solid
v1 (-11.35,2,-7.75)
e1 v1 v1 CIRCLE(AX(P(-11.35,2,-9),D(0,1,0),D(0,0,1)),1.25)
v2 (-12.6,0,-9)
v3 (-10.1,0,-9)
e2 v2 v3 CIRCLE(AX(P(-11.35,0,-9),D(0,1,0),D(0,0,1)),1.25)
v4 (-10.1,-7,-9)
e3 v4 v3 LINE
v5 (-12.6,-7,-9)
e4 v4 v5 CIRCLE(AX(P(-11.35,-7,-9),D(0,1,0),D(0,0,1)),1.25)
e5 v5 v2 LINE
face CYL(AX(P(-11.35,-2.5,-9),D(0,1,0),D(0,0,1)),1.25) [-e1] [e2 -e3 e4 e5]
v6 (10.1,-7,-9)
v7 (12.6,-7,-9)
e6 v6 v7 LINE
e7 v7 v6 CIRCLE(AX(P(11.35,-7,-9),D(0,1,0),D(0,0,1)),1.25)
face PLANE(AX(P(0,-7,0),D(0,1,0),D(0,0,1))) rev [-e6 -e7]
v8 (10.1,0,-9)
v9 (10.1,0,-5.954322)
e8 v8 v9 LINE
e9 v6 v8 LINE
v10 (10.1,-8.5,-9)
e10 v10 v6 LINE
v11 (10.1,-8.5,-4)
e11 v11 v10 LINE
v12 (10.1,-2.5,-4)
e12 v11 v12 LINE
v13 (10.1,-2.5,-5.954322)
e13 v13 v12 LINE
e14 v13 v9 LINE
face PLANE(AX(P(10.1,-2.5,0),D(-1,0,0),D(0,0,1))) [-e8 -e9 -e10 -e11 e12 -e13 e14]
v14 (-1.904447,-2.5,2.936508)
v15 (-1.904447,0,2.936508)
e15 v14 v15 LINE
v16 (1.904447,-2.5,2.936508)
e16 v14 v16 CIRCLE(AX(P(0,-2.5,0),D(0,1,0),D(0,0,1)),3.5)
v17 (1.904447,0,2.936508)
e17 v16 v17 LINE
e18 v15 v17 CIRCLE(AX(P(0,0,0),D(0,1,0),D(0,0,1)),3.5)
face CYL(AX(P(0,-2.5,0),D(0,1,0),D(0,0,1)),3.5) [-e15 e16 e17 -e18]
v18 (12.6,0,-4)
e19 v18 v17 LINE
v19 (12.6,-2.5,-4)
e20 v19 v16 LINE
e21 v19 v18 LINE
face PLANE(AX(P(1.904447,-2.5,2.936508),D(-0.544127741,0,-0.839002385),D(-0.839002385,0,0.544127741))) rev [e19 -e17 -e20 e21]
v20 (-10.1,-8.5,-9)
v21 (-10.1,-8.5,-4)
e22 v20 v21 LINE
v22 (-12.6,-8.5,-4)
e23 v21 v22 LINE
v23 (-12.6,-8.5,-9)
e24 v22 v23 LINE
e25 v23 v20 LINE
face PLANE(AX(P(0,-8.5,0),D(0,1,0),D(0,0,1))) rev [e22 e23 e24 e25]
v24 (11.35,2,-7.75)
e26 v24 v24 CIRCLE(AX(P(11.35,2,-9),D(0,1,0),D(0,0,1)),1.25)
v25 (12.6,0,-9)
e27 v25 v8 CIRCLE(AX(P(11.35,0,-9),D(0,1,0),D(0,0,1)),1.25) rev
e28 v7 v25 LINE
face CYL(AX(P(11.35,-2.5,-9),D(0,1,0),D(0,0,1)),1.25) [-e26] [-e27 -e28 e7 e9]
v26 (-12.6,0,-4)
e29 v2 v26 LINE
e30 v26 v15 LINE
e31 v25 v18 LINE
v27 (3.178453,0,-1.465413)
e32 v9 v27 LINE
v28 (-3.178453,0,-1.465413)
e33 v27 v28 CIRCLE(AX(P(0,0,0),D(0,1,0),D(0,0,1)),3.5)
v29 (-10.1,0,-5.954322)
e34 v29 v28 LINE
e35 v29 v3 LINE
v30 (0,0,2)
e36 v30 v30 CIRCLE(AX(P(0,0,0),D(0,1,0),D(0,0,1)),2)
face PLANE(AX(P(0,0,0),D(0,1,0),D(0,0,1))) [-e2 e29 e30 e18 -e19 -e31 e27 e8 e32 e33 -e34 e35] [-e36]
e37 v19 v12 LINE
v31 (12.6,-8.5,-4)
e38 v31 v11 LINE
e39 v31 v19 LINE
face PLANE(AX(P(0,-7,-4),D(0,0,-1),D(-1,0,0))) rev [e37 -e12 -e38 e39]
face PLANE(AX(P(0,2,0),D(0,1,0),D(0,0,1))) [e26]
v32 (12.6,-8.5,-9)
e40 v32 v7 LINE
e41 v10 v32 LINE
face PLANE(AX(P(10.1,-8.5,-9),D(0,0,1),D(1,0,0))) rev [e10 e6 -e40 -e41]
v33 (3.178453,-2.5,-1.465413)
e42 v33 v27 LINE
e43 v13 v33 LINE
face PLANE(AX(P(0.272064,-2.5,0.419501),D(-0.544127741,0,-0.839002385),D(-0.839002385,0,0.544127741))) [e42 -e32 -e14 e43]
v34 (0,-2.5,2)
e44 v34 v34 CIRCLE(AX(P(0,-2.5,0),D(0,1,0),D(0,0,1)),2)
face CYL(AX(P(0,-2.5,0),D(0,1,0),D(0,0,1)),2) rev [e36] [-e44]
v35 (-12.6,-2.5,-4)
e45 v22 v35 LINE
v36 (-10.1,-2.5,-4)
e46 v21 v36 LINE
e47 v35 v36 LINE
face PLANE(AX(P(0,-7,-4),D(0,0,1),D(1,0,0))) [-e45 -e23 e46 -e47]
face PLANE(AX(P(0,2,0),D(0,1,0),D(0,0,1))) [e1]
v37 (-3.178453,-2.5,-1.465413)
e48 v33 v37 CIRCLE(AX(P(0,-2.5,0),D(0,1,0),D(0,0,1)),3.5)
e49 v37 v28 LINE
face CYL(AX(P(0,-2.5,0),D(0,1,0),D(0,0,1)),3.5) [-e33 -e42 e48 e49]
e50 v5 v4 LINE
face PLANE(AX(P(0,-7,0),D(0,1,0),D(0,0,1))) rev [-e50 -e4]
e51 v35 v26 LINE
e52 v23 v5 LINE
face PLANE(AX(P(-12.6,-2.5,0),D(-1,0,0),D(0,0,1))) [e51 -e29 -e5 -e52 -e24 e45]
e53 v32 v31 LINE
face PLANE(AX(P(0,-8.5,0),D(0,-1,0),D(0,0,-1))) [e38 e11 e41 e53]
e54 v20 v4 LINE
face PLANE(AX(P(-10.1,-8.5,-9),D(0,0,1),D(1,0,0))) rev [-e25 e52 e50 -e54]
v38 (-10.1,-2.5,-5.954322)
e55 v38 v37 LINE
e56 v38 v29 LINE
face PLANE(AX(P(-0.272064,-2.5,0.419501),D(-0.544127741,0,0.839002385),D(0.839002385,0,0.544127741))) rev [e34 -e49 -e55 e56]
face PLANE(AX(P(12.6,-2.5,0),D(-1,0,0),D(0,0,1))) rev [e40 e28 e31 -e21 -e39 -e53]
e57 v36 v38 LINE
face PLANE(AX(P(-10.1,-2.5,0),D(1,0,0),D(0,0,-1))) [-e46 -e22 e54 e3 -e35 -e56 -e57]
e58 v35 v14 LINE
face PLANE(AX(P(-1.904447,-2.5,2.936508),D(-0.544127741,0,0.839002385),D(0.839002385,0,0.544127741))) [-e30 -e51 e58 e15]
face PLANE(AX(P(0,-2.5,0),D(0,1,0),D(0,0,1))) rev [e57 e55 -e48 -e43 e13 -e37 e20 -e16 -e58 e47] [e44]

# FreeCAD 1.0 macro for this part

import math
import FreeCAD as App
import Part
import Sketcher

doc = App.newDocument("Part")
params = doc.addObject("Spreadsheet::Sheet", "Params")
for row, (alias, value) in enumerate([
    ("sketch1_diameter", "4 mm"),
    ("sketch1_radius", "3.5 mm"),
    ("sketch1_height", "5 mm"),
    ("sketch1_radius2", "1.25 mm"),
    ("pad1_length", "2.5 mm"),
    ("sketch2_height", "5 mm"),
    ("sketch2_radius", "1.25 mm"),
    ("pad2_length", "7 mm"),
    ("sketch3_diameter", "2.5 mm"),
    ("pad3_length", "2 mm"),
    ("sketch4_height", "5 mm"),
    ("sketch4_width", "2.5 mm"),
    ("pad4_length", "1.5 mm"),
], start=1):
    params.set(f"A{row}", alias)
    params.set(f"B{row}", "=" + value)
    params.setAlias(f"B{row}", alias)

body = doc.addObject("PartDesign::Body", "Body")

sketch1 = doc.addObject("Sketcher::SketchObject", "Sketch")
body.addObject(sketch1)
sketch1.AttachmentSupport = (doc.XZ_Plane, [""])
sketch1.MapMode = "FlatFace"
sketch1.addGeometry([
    Part.ArcOfCircle(Part.Circle(App.Vector(-11.3, -9, 0), App.Vector(0, 0, 1), 1.2), math.radians(180), math.radians(360)),
    Part.LineSegment(App.Vector(-12.6, -9, 0), App.Vector(-12.6, -4, 0)),
    Part.LineSegment(App.Vector(-12.6, -4, 0), App.Vector(-1.9, 2.9, 0)),
    Part.ArcOfCircle(Part.Circle(App.Vector(0, 0, 0), App.Vector(0, 0, 1), 3.5), math.radians(57), math.radians(123)),
    Part.LineSegment(App.Vector(1.9, 2.9, 0), App.Vector(12.6, -4, 0)),
    Part.LineSegment(App.Vector(12.6, -4, 0), App.Vector(12.6, -9, 0)),
    Part.ArcOfCircle(Part.Circle(App.Vector(11.3, -9, 0), App.Vector(0, 0, 1), 1.2), math.radians(180), math.radians(360)),
    Part.LineSegment(App.Vector(10.1, -9, 0), App.Vector(10.1, -6, 0)),
    Part.LineSegment(App.Vector(10.1, -6, 0), App.Vector(3.2, -1.5, 0)),
    Part.ArcOfCircle(Part.Circle(App.Vector(0, 0, 0), App.Vector(0, 0, 1), 3.5), math.radians(-155), math.radians(-25)),
    Part.LineSegment(App.Vector(-3.2, -1.5, 0), App.Vector(-10.1, -6, 0)),
    Part.LineSegment(App.Vector(-10.1, -6, 0), App.Vector(-10.1, -9, 0)),
    Part.Circle(App.Vector(0, 0, 0), App.Vector(0, 0, 1), 2),
], False)
sketch1.addConstraint([
    Sketcher.Constraint("Tangent", 0, 1, 1, 1),
    Sketcher.Constraint("Coincident", 1, 2, 2, 1),
    Sketcher.Constraint("Tangent", 2, 2, 3, 2),
    Sketcher.Constraint("Tangent", 3, 1, 4, 1),
    Sketcher.Constraint("Coincident", 4, 2, 5, 1),
    Sketcher.Constraint("Tangent", 5, 2, 6, 2),
    Sketcher.Constraint("Tangent", 6, 1, 7, 1),
    Sketcher.Constraint("Coincident", 7, 2, 8, 1),
    Sketcher.Constraint("Coincident", 8, 2, 9, 2),
    Sketcher.Constraint("Coincident", 9, 1, 10, 1),
    Sketcher.Constraint("Coincident", 10, 2, 11, 1),
    Sketcher.Constraint("Tangent", 11, 2, 0, 2),
    Sketcher.Constraint("Vertical", 1),
    Sketcher.Constraint("Vertical", 5),
    Sketcher.Constraint("Vertical", 7),
    Sketcher.Constraint("Vertical", 11),
    Sketcher.Constraint("Coincident", 3, 3, -1, 1),
    Sketcher.Constraint("Coincident", 9, 3, -1, 1),
    Sketcher.Constraint("Coincident", 12, 3, -1, 1),
    Sketcher.Constraint("Equal", 0, 6),
    Sketcher.Constraint("Equal", 3, 9),
    Sketcher.Constraint("Symmetric", 0, 3, 6, 3, -2),
    Sketcher.Constraint("Parallel", 4, 8),
    Sketcher.Constraint("Parallel", 2, 10),
    Sketcher.Constraint("Horizontal", 2, 2, 3, 1),
    Sketcher.Constraint("Horizontal", 8, 2, 9, 1),
    Sketcher.Constraint("Diameter", 12, 4.0),
    Sketcher.Constraint("Radius", 3, 3.5),
    Sketcher.Constraint("DistanceY", 1, 1, 1, 2, 5.0),
    Sketcher.Constraint("Radius", 0, 1.25),
    Sketcher.Constraint("DistanceY", 0, 3, -1, 1, 9.0),
    Sketcher.Constraint("DistanceX", 0, 1, -1, 1, 12.6),
    Sketcher.Constraint("DistanceY", 7, 1, 7, 2, 3.045678),
])
sketch1.setExpression("Constraints[26]", "Params.sketch1_diameter")
sketch1.setExpression("Constraints[27]", "Params.sketch1_radius")
sketch1.setExpression("Constraints[28]", "Params.sketch1_height")
sketch1.setExpression("Constraints[29]", "Params.sketch1_radius2")
pad1 = doc.addObject("PartDesign::Pad", "Pad")
body.addObject(pad1)
pad1.Profile = sketch1
pad1.setExpression("Length", "Params.pad1_length")

sketch2 = doc.addObject("Sketcher::SketchObject", "Sketch001")
body.addObject(sketch2)
sketch2.AttachmentSupport = (doc.XZ_Plane, [""])
sketch2.MapMode = "FlatFace"
sketch2.addGeometry([
    Part.LineSegment(App.Vector(-12.6, -9, 0), App.Vector(-12.6, -4, 0)),
    Part.LineSegment(App.Vector(-12.6, -4, 0), App.Vector(-10.1, -4, 0)),
    Part.LineSegment(App.Vector(-10.1, -4, 0), App.Vector(-10.1, -9, 0)),
    Part.ArcOfCircle(Part.Circle(App.Vector(-11.3, -9, 0), App.Vector(0, 0, 1), 1.2), math.radians(180), math.radians(360)),
    Part.ArcOfCircle(Part.Circle(App.Vector(11.3, -9, 0), App.Vector(0, 0, 1), 1.2), math.radians(180), math.radians(360)),
    Part.LineSegment(App.Vector(10.1, -9, 0), App.Vector(10.1, -4, 0)),
    Part.LineSegment(App.Vector(10.1, -4, 0), App.Vector(12.6, -4, 0)),
    Part.LineSegment(App.Vector(12.6, -4, 0), App.Vector(12.6, -9, 0)),
], False)
sketch2.addConstraint([
    Sketcher.Constraint("Coincident", 0, 2, 1, 1),
    Sketcher.Constraint("Coincident", 1, 2, 2, 1),
    Sketcher.Constraint("Tangent", 2, 2, 3, 2),
    Sketcher.Constraint("Tangent", 3, 1, 0, 1),
    Sketcher.Constraint("Tangent", 4, 1, 5, 1),
    Sketcher.Constraint("Coincident", 5, 2, 6, 1),
    Sketcher.Constraint("Coincident", 6, 2, 7, 1),
    Sketcher.Constraint("Tangent", 7, 2, 4, 2),
    Sketcher.Constraint("Vertical", 0),
    Sketcher.Constraint("Horizontal", 1),
    Sketcher.Constraint("Vertical", 2),
    Sketcher.Constraint("Vertical", 5),
    Sketcher.Constraint("Horizontal", 6),
    Sketcher.Constraint("Vertical", 7),
    Sketcher.Constraint("Equal", 3, 4),
    Sketcher.Constraint("Symmetric", 3, 3, 4, 3, -2),
    Sketcher.Constraint("Horizontal", 1, 2, 5, 2),
    Sketcher.Constraint("DistanceY", 0, 1, 0, 2, 5.0),
    Sketcher.Constraint("Radius", 3, 1.25),
    Sketcher.Constraint("DistanceY", 3, 3, -1, 1, 9.0),
    Sketcher.Constraint("DistanceX", 0, 2, -1, 1, 12.6),
])
sketch2.setExpression("Constraints[17]", "Params.sketch2_height")
sketch2.setExpression("Constraints[18]", "Params.sketch2_radius")
pad2 = doc.addObject("PartDesign::Pad", "Pad001")
body.addObject(pad2)
pad2.Profile = sketch2
pad2.setExpression("Length", "Params.pad2_length")

sketch3 = doc.addObject("Sketcher::SketchObject", "Sketch002")
body.addObject(sketch3)
sketch3.AttachmentSupport = (doc.XZ_Plane, [""])
sketch3.MapMode = "FlatFace"
sketch3.AttachmentOffset = App.Placement(App.Vector(0, 0, -2), App.Rotation())
sketch3.addGeometry([
    Part.Circle(App.Vector(-11.3, -9, 0), App.Vector(0, 0, 1), 1.2),
    Part.Circle(App.Vector(11.3, -9, 0), App.Vector(0, 0, 1), 1.2),
], False)
sketch3.addConstraint([
    Sketcher.Constraint("Equal", 0, 1),
    Sketcher.Constraint("Symmetric", 0, 3, 1, 3, -2),
    Sketcher.Constraint("Diameter", 0, 2.5),
    Sketcher.Constraint("DistanceY", 0, 3, -1, 1, 9.0),
    Sketcher.Constraint("DistanceX", 0, 3, 1, 3, 22.7),
])
sketch3.setExpression("Constraints[2]", "Params.sketch3_diameter")
pad3 = doc.addObject("PartDesign::Pad", "Pad002")
body.addObject(pad3)
pad3.Profile = sketch3
pad3.setExpression("Length", "Params.pad3_length")

sketch4 = doc.addObject("Sketcher::SketchObject", "Sketch003")
body.addObject(sketch4)
sketch4.AttachmentSupport = (doc.XZ_Plane, [""])
sketch4.MapMode = "FlatFace"
sketch4.AttachmentOffset = App.Placement(App.Vector(0, 0, 7), App.Rotation())
sketch4.addGeometry([
    Part.LineSegment(App.Vector(-12.6, -4, 0), App.Vector(-12.6, -9, 0)),
    Part.LineSegment(App.Vector(-12.6, -9, 0), App.Vector(-10.1, -9, 0)),
    Part.LineSegment(App.Vector(-10.1, -9, 0), App.Vector(-10.1, -4, 0)),
    Part.LineSegment(App.Vector(-10.1, -4, 0), App.Vector(-12.6, -4, 0)),
    Part.LineSegment(App.Vector(10.1, -4, 0), App.Vector(10.1, -9, 0)),
    Part.LineSegment(App.Vector(10.1, -9, 0), App.Vector(12.6, -9, 0)),
    Part.LineSegment(App.Vector(12.6, -9, 0), App.Vector(12.6, -4, 0)),
    Part.LineSegment(App.Vector(12.6, -4, 0), App.Vector(10.1, -4, 0)),
], False)
sketch4.addConstraint([
    Sketcher.Constraint("Coincident", 0, 2, 1, 1),
    Sketcher.Constraint("Coincident", 1, 2, 2, 1),
    Sketcher.Constraint("Coincident", 2, 2, 3, 1),
    Sketcher.Constraint("Coincident", 3, 2, 0, 1),
    Sketcher.Constraint("Coincident", 4, 2, 5, 1),
    Sketcher.Constraint("Coincident", 5, 2, 6, 1),
    Sketcher.Constraint("Coincident", 6, 2, 7, 1),
    Sketcher.Constraint("Coincident", 7, 2, 4, 1),
    Sketcher.Constraint("Vertical", 0),
    Sketcher.Constraint("Horizontal", 1),
    Sketcher.Constraint("Vertical", 2),
    Sketcher.Constraint("Horizontal", 3),
    Sketcher.Constraint("Vertical", 4),
    Sketcher.Constraint("Horizontal", 5),
    Sketcher.Constraint("Vertical", 6),
    Sketcher.Constraint("Horizontal", 7),
    Sketcher.Constraint("Symmetric", 1, 2, 4, 2, -2),
    Sketcher.Constraint("Symmetric", 3, 2, 6, 2, -2),
    Sketcher.Constraint("DistanceY", 0, 2, 0, 1, 5.0),
    Sketcher.Constraint("DistanceX", 1, 1, 1, 2, 2.5),
    Sketcher.Constraint("DistanceY", 0, 2, -1, 1, 9.0),
    Sketcher.Constraint("DistanceX", 0, 2, -1, 1, 12.6),
])
sketch4.setExpression("Constraints[18]", "Params.sketch4_height")
sketch4.setExpression("Constraints[19]", "Params.sketch4_width")
pad4 = doc.addObject("PartDesign::Pad", "Pad003")
body.addObject(pad4)
pad4.Profile = sketch4
pad4.setExpression("Length", "Params.pad4_length")

doc.recompute()
